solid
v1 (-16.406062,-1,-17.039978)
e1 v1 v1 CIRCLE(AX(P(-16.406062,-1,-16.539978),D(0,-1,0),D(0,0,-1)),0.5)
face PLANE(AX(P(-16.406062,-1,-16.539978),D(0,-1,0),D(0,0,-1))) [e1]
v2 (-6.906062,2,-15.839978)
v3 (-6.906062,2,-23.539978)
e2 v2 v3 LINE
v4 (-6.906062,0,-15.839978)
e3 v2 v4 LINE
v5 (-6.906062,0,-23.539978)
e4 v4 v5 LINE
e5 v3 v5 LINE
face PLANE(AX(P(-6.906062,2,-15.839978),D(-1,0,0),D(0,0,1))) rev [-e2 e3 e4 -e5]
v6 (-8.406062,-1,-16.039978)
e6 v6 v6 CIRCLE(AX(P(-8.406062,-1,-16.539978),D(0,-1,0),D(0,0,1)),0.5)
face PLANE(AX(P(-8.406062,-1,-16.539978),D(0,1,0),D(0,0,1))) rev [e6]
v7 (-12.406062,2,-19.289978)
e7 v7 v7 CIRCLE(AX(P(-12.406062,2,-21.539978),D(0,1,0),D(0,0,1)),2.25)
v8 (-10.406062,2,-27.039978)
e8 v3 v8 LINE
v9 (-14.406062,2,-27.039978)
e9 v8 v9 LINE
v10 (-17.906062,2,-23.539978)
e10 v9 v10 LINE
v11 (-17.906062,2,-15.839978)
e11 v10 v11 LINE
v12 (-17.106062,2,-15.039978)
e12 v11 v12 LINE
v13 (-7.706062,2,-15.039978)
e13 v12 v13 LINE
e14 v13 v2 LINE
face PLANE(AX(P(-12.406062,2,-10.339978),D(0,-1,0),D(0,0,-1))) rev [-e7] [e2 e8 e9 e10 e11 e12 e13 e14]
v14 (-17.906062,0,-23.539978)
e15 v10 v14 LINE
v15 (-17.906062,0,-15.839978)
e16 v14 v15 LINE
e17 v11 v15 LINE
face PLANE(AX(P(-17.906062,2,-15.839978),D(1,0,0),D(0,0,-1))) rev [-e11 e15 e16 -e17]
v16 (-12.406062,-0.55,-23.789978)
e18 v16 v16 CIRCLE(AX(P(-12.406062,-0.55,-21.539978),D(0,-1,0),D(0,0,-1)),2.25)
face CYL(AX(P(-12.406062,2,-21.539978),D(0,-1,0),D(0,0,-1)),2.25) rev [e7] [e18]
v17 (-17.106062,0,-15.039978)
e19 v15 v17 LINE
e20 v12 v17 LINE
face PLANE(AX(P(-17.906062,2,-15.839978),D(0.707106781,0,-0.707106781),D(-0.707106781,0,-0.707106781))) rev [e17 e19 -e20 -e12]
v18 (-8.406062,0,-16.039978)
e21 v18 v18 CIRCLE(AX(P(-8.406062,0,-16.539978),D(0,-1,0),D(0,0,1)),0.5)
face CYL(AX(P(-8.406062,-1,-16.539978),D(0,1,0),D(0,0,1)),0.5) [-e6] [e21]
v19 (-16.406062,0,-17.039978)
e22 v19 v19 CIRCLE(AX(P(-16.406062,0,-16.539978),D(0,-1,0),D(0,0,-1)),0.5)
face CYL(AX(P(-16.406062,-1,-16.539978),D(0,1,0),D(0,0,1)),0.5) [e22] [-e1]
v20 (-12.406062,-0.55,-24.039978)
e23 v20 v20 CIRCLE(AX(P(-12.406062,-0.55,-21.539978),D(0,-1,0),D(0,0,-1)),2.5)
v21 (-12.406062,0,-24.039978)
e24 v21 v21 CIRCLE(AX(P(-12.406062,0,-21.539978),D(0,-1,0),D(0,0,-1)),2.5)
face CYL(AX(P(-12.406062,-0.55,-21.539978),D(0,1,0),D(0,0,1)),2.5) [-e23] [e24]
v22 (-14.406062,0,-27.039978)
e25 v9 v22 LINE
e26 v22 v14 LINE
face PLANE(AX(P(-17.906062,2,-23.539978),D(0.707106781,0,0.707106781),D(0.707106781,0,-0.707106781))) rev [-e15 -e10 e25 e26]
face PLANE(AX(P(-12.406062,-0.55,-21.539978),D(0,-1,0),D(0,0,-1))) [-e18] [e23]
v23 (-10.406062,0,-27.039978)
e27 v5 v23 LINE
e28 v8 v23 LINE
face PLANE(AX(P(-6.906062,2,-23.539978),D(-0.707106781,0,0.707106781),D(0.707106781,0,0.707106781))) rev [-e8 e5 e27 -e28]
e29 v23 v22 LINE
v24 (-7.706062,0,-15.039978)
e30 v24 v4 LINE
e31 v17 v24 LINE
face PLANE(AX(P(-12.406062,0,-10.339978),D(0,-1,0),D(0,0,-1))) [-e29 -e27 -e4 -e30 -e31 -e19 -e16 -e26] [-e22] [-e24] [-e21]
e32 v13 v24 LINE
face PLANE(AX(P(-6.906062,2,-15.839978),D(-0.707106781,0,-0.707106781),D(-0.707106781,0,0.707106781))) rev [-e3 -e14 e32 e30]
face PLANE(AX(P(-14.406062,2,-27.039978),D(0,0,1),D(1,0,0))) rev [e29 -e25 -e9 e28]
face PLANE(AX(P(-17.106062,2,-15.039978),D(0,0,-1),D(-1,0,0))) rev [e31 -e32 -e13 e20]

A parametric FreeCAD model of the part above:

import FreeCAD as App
import Part
import Sketcher
from FreeCAD import Vector

doc = App.newDocument("Part")
body = doc.addObject("PartDesign::Body", "Body")

sketch1 = body.newObject("Sketcher::SketchObject", "Sketch")
sketch1.AttachmentSupport = (doc.getObject("XZ_Plane"), [""])
sketch1.MapMode = "FlatFace"
sketch1.addGeometry(Part.LineSegment(Vector(-17.9, -23.5, 0), Vector(-17.9, -15.8, 0)), False)
sketch1.addGeometry(Part.LineSegment(Vector(-17.9, -15.8, 0), Vector(-17.1, -15, 0)), False)
sketch1.addGeometry(Part.LineSegment(Vector(-17.1, -15, 0), Vector(-7.7, -15, 0)), False)
sketch1.addGeometry(Part.LineSegment(Vector(-7.7, -15, 0), Vector(-6.9, -15.8, 0)), False)
sketch1.addGeometry(Part.LineSegment(Vector(-6.9, -15.8, 0), Vector(-6.9, -23.5, 0)), False)
sketch1.addGeometry(Part.LineSegment(Vector(-6.9, -23.5, 0), Vector(-10.4, -27, 0)), False)
sketch1.addGeometry(Part.LineSegment(Vector(-10.4, -27, 0), Vector(-14.4, -27, 0)), False)
sketch1.addGeometry(Part.LineSegment(Vector(-14.4, -27, 0), Vector(-17.9, -23.5, 0)), False)
sketch1.addGeometry(Part.Circle(Vector(-12.4, -21.5, 0), Vector(0, 0, 1), 2.2), False)
sketch1.addConstraint(Sketcher.Constraint("Coincident", 0, 2, 1, 1))
sketch1.addConstraint(Sketcher.Constraint("Coincident", 1, 2, 2, 1))
sketch1.addConstraint(Sketcher.Constraint("Coincident", 2, 2, 3, 1))
sketch1.addConstraint(Sketcher.Constraint("Coincident", 3, 2, 4, 1))
sketch1.addConstraint(Sketcher.Constraint("Coincident", 4, 2, 5, 1))
sketch1.addConstraint(Sketcher.Constraint("Coincident", 5, 2, 6, 1))
sketch1.addConstraint(Sketcher.Constraint("Coincident", 6, 2, 7, 1))
sketch1.addConstraint(Sketcher.Constraint("Coincident", 7, 2, 0, 1))
sketch1.addConstraint(Sketcher.Constraint("Vertical", 0))
sketch1.addConstraint(Sketcher.Constraint("Horizontal", 2))
sketch1.addConstraint(Sketcher.Constraint("Vertical", 4))
sketch1.addConstraint(Sketcher.Constraint("Horizontal", 6))
sketch1.addConstraint(Sketcher.Constraint("Perpendicular", 1, 3))
sketch1.addConstraint(Sketcher.Constraint("Perpendicular", 3, 5))
sketch1.addConstraint(Sketcher.Constraint("Perpendicular", 5, 7))
sketch1.addConstraint(Sketcher.Constraint("Horizontal", 0, 2, 3, 2))
sketch1.addConstraint(Sketcher.Constraint("Horizontal", 4, 2, 7, 2))
sketch1.addConstraint(Sketcher.Constraint("Equal", 1, 3))
sketch1.addConstraint(Sketcher.Constraint("Diameter", 8, 4.5))
sketch1.addConstraint(Sketcher.Constraint("DistanceX", 6, 2, 6, 1, 4.0))
sketch1.addConstraint(Sketcher.Constraint("DistanceX", 2, 1, 2, 2, 9.4))
sketch1.addConstraint(Sketcher.Constraint("DistanceY", 0, 1, 0, 2, 7.7))
sketch1.addConstraint(Sketcher.Constraint("DistanceX", 0, 2, 3, 2, 11.0))
sketch1.addConstraint(Sketcher.Constraint("DistanceY", 4, 2, 8, 3, 2.0))
sketch1.addConstraint(Sketcher.Constraint("DistanceX", 8, 3, 5, 2, 2.0))
sketch1.addConstraint(Sketcher.Constraint("DistanceY", 8, 3, -1, 1, 21.539978))
sketch1.addConstraint(Sketcher.Constraint("DistanceX", 8, 3, -1, 1, 12.406062))
pad1 = body.newObject("PartDesign::Pad", "Pad")
pad1.Profile = sketch1
pad1.Length = 2
pad1.Reversed = True

sketch2 = body.newObject("Sketcher::SketchObject", "Sketch001")
sketch2.AttachmentSupport = (doc.getObject("XZ_Plane"), [""])
sketch2.MapMode = "FlatFace"
sketch2.addGeometry(Part.Circle(Vector(-12.4, -21.5, 0), Vector(0, 0, 1), 2.5), False)
sketch2.addGeometry(Part.Circle(Vector(-12.4, -21.5, 0), Vector(0, 0, 1), 2.2), False)
sketch2.addConstraint(Sketcher.Constraint("Coincident", 1, 3, 0, 3))
sketch2.addConstraint(Sketcher.Constraint("Diameter", 0, 5.0))
sketch2.addConstraint(Sketcher.Constraint("Diameter", 1, 4.5))
sketch2.addConstraint(Sketcher.Constraint("DistanceY", 0, 3, -1, 1, 21.539978))
sketch2.addConstraint(Sketcher.Constraint("DistanceX", 0, 3, -1, 1, 12.406062))
pad2 = body.newObject("PartDesign::Pad", "Pad001")
pad2.Profile = sketch2
pad2.Length = 0.55

sketch3 = body.newObject("Sketcher::SketchObject", "Sketch002")
sketch3.AttachmentSupport = (doc.getObject("XZ_Plane"), [""])
sketch3.MapMode = "FlatFace"
sketch3.addGeometry(Part.Circle(Vector(-16.4, -16.5, 0), Vector(0, 0, 1), 0.5), False)
sketch3.addGeometry(Part.Circle(Vector(-8.4, -16.5, 0), Vector(0, 0, 1), 0.5), False)
sketch3.addConstraint(Sketcher.Constraint("Equal", 0, 1))
sketch3.addConstraint(Sketcher.Constraint("Horizontal", 0, 3, 1, 3))
sketch3.addConstraint(Sketcher.Constraint("Diameter", 0, 1.0))
sketch3.addConstraint(Sketcher.Constraint("DistanceX", 0, 3, 1, 3, 8.0))
sketch3.addConstraint(Sketcher.Constraint("DistanceY", 0, 3, -1, 1, 16.539978))
sketch3.addConstraint(Sketcher.Constraint("DistanceX", 0, 3, -1, 1, 16.406062))
pad3 = body.newObject("PartDesign::Pad", "Pad002")
pad3.Profile = sketch3
pad3.Length = 1

doc.recompute()
